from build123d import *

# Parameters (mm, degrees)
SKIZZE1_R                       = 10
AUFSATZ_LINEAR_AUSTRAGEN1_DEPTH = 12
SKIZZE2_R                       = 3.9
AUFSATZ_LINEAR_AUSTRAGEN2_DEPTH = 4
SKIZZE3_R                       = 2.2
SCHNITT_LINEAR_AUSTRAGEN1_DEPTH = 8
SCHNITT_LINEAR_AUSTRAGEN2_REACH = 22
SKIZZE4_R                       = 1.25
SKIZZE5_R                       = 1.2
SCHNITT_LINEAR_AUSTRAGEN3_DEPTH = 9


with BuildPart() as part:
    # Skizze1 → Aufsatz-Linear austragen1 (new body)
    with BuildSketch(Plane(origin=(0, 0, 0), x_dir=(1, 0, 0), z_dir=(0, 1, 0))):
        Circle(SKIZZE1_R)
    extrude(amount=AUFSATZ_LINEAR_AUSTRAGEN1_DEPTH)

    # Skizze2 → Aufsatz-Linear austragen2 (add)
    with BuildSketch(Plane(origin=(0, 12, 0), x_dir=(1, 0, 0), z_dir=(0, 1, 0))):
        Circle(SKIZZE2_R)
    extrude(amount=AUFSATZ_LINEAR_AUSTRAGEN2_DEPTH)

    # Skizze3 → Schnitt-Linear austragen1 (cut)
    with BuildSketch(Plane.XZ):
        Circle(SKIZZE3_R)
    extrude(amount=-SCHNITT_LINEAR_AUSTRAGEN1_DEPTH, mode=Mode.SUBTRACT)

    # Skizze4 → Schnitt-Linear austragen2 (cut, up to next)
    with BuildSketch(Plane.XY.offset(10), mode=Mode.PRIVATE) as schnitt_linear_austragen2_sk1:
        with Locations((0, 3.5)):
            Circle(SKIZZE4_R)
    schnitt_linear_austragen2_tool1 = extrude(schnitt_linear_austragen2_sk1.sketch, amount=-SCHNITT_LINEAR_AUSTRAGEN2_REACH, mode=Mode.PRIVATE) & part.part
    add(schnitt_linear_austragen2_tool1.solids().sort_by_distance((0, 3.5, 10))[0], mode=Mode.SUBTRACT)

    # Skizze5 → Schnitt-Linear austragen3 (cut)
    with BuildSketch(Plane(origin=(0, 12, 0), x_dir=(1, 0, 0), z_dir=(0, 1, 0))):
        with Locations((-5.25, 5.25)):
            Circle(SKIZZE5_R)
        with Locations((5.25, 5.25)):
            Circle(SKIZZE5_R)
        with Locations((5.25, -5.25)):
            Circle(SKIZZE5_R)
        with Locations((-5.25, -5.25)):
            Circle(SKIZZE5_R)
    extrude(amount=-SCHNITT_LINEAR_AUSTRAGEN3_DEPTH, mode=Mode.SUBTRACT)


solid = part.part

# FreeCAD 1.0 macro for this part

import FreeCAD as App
import Part
import Sketcher
from FreeCAD import Vector
Q = App.Units.Quantity

doc = App.newDocument("Part")
body = doc.addObject("PartDesign::Body", "Body")

# Sketch on XZ plane
sketch1 = doc.addObject("Sketcher::SketchObject", "Sketch")
body.addObject(sketch1)
sketch1.AttachmentSupport = (doc.XZ_Plane, [""])
sketch1.MapMode = "FlatFace"
sketch1.addGeometry(Part.Circle(Vector(0, 0, 0), Vector(0, 0, 1), 10), False)
sketch1.addConstraint(Sketcher.Constraint("Coincident", 0, 3, -1, 1))
sketch1.addConstraint(Sketcher.Constraint("Diameter", 0, Q("20 mm")))
pad1 = doc.addObject("PartDesign::Pad", "Pad")
body.addObject(pad1)
pad1.Profile = sketch1
pad1.Length = 12
pad1.Reversed = True

# Sketch on XZ plane
sketch2 = doc.addObject("Sketcher::SketchObject", "Sketch001")
body.addObject(sketch2)
sketch2.AttachmentSupport = (doc.XZ_Plane, [""])
sketch2.MapMode = "FlatFace"
sketch2.AttachmentOffset = App.Placement(Vector(0, 0, -12), App.Rotation())
sketch2.addGeometry(Part.Circle(Vector(0, 0, 0), Vector(0, 0, 1), 3.9), False)
sketch2.addConstraint(Sketcher.Constraint("Coincident", 0, 3, -1, 1))
sketch2.addConstraint(Sketcher.Constraint("Diameter", 0, Q("7.8 mm")))
pad2 = doc.addObject("PartDesign::Pad", "Pad001")
body.addObject(pad2)
pad2.Profile = sketch2
pad2.Length = 4
pad2.Reversed = True

# Sketch on XZ plane
sketch3 = doc.addObject("Sketcher::SketchObject", "Sketch002")
body.addObject(sketch3)
sketch3.AttachmentSupport = (doc.XZ_Plane, [""])
sketch3.MapMode = "FlatFace"
sketch3.addGeometry(Part.Circle(Vector(0, 0, 0), Vector(0, 0, 1), 2.2), False)
sketch3.addConstraint(Sketcher.Constraint("Coincident", 0, 3, -1, 1))
sketch3.addConstraint(Sketcher.Constraint("Diameter", 0, Q("4.4 mm")))
pocket1 = doc.addObject("PartDesign::Pocket", "Pocket")
body.addObject(pocket1)
pocket1.Profile = sketch3
pocket1.Length = 8

# Sketch on XY plane
sketch4 = doc.addObject("Sketcher::SketchObject", "Sketch003")
body.addObject(sketch4)
sketch4.AttachmentSupport = (doc.XY_Plane, [""])
sketch4.MapMode = "FlatFace"
sketch4.AttachmentOffset = App.Placement(Vector(0, 0, 10), App.Rotation())
sketch4.addGeometry(Part.Circle(Vector(0, 3.5, 0), Vector(0, 0, 1), 1.25), False)
sketch4.addConstraint(Sketcher.Constraint("PointOnObject", 0, 3, -2))
sketch4.addConstraint(Sketcher.Constraint("Diameter", 0, Q("2.5 mm")))
sketch4.addConstraint(Sketcher.Constraint("DistanceY", -1, 1, 0, 3, Q("3.5 mm")))
pocket2 = doc.addObject("PartDesign::Pocket", "Pocket001")
body.addObject(pocket2)
pocket2.Profile = sketch4
pocket2.Type = "UpToFirst"

# Sketch on XZ plane
sketch5 = doc.addObject("Sketcher::SketchObject", "Sketch004")
body.addObject(sketch5)
sketch5.AttachmentSupport = (doc.XZ_Plane, [""])
sketch5.MapMode = "FlatFace"
sketch5.AttachmentOffset = App.Placement(Vector(0, 0, -12), App.Rotation())
sketch5.addGeometry(Part.Circle(Vector(-5.25, -5.25, 0), Vector(0, 0, 1), 1.2), False)
sketch5.addGeometry(Part.Circle(Vector(5.25, -5.25, 0), Vector(0, 0, 1), 1.2), False)
sketch5.addGeometry(Part.Circle(Vector(5.25, 5.25, 0), Vector(0, 0, 1), 1.2), False)
sketch5.addGeometry(Part.Circle(Vector(-5.25, 5.25, 0), Vector(0, 0, 1), 1.2), False)
sketch5.addConstraint(Sketcher.Constraint("Equal", 0, 1))
sketch5.addConstraint(Sketcher.Constraint("Equal", 1, 2))
sketch5.addConstraint(Sketcher.Constraint("Equal", 2, 3))
sketch5.addConstraint(Sketcher.Constraint("Symmetric", 0, 3, 2, 3, -1, 1))
sketch5.addConstraint(Sketcher.Constraint("Symmetric", 1, 3, 3, 3, -1, 1))
sketch5.addConstraint(Sketcher.Constraint("Symmetric", 0, 3, 1, 3, -2))
sketch5.addConstraint(Sketcher.Constraint("Diameter", 0, Q("2.4 mm")))
sketch5.addConstraint(Sketcher.Constraint("DistanceX", 0, 3, 1, 3, Q("10.5 mm")))
sketch5.addConstraint(Sketcher.Constraint("DistanceY", 1, 3, 2, 3, Q("10.5 mm")))
pocket3 = doc.addObject("PartDesign::Pocket", "Pocket002")
body.addObject(pocket3)
pocket3.Profile = sketch5
pocket3.Length = 9
pocket3.Reversed = True

doc.recompute()
